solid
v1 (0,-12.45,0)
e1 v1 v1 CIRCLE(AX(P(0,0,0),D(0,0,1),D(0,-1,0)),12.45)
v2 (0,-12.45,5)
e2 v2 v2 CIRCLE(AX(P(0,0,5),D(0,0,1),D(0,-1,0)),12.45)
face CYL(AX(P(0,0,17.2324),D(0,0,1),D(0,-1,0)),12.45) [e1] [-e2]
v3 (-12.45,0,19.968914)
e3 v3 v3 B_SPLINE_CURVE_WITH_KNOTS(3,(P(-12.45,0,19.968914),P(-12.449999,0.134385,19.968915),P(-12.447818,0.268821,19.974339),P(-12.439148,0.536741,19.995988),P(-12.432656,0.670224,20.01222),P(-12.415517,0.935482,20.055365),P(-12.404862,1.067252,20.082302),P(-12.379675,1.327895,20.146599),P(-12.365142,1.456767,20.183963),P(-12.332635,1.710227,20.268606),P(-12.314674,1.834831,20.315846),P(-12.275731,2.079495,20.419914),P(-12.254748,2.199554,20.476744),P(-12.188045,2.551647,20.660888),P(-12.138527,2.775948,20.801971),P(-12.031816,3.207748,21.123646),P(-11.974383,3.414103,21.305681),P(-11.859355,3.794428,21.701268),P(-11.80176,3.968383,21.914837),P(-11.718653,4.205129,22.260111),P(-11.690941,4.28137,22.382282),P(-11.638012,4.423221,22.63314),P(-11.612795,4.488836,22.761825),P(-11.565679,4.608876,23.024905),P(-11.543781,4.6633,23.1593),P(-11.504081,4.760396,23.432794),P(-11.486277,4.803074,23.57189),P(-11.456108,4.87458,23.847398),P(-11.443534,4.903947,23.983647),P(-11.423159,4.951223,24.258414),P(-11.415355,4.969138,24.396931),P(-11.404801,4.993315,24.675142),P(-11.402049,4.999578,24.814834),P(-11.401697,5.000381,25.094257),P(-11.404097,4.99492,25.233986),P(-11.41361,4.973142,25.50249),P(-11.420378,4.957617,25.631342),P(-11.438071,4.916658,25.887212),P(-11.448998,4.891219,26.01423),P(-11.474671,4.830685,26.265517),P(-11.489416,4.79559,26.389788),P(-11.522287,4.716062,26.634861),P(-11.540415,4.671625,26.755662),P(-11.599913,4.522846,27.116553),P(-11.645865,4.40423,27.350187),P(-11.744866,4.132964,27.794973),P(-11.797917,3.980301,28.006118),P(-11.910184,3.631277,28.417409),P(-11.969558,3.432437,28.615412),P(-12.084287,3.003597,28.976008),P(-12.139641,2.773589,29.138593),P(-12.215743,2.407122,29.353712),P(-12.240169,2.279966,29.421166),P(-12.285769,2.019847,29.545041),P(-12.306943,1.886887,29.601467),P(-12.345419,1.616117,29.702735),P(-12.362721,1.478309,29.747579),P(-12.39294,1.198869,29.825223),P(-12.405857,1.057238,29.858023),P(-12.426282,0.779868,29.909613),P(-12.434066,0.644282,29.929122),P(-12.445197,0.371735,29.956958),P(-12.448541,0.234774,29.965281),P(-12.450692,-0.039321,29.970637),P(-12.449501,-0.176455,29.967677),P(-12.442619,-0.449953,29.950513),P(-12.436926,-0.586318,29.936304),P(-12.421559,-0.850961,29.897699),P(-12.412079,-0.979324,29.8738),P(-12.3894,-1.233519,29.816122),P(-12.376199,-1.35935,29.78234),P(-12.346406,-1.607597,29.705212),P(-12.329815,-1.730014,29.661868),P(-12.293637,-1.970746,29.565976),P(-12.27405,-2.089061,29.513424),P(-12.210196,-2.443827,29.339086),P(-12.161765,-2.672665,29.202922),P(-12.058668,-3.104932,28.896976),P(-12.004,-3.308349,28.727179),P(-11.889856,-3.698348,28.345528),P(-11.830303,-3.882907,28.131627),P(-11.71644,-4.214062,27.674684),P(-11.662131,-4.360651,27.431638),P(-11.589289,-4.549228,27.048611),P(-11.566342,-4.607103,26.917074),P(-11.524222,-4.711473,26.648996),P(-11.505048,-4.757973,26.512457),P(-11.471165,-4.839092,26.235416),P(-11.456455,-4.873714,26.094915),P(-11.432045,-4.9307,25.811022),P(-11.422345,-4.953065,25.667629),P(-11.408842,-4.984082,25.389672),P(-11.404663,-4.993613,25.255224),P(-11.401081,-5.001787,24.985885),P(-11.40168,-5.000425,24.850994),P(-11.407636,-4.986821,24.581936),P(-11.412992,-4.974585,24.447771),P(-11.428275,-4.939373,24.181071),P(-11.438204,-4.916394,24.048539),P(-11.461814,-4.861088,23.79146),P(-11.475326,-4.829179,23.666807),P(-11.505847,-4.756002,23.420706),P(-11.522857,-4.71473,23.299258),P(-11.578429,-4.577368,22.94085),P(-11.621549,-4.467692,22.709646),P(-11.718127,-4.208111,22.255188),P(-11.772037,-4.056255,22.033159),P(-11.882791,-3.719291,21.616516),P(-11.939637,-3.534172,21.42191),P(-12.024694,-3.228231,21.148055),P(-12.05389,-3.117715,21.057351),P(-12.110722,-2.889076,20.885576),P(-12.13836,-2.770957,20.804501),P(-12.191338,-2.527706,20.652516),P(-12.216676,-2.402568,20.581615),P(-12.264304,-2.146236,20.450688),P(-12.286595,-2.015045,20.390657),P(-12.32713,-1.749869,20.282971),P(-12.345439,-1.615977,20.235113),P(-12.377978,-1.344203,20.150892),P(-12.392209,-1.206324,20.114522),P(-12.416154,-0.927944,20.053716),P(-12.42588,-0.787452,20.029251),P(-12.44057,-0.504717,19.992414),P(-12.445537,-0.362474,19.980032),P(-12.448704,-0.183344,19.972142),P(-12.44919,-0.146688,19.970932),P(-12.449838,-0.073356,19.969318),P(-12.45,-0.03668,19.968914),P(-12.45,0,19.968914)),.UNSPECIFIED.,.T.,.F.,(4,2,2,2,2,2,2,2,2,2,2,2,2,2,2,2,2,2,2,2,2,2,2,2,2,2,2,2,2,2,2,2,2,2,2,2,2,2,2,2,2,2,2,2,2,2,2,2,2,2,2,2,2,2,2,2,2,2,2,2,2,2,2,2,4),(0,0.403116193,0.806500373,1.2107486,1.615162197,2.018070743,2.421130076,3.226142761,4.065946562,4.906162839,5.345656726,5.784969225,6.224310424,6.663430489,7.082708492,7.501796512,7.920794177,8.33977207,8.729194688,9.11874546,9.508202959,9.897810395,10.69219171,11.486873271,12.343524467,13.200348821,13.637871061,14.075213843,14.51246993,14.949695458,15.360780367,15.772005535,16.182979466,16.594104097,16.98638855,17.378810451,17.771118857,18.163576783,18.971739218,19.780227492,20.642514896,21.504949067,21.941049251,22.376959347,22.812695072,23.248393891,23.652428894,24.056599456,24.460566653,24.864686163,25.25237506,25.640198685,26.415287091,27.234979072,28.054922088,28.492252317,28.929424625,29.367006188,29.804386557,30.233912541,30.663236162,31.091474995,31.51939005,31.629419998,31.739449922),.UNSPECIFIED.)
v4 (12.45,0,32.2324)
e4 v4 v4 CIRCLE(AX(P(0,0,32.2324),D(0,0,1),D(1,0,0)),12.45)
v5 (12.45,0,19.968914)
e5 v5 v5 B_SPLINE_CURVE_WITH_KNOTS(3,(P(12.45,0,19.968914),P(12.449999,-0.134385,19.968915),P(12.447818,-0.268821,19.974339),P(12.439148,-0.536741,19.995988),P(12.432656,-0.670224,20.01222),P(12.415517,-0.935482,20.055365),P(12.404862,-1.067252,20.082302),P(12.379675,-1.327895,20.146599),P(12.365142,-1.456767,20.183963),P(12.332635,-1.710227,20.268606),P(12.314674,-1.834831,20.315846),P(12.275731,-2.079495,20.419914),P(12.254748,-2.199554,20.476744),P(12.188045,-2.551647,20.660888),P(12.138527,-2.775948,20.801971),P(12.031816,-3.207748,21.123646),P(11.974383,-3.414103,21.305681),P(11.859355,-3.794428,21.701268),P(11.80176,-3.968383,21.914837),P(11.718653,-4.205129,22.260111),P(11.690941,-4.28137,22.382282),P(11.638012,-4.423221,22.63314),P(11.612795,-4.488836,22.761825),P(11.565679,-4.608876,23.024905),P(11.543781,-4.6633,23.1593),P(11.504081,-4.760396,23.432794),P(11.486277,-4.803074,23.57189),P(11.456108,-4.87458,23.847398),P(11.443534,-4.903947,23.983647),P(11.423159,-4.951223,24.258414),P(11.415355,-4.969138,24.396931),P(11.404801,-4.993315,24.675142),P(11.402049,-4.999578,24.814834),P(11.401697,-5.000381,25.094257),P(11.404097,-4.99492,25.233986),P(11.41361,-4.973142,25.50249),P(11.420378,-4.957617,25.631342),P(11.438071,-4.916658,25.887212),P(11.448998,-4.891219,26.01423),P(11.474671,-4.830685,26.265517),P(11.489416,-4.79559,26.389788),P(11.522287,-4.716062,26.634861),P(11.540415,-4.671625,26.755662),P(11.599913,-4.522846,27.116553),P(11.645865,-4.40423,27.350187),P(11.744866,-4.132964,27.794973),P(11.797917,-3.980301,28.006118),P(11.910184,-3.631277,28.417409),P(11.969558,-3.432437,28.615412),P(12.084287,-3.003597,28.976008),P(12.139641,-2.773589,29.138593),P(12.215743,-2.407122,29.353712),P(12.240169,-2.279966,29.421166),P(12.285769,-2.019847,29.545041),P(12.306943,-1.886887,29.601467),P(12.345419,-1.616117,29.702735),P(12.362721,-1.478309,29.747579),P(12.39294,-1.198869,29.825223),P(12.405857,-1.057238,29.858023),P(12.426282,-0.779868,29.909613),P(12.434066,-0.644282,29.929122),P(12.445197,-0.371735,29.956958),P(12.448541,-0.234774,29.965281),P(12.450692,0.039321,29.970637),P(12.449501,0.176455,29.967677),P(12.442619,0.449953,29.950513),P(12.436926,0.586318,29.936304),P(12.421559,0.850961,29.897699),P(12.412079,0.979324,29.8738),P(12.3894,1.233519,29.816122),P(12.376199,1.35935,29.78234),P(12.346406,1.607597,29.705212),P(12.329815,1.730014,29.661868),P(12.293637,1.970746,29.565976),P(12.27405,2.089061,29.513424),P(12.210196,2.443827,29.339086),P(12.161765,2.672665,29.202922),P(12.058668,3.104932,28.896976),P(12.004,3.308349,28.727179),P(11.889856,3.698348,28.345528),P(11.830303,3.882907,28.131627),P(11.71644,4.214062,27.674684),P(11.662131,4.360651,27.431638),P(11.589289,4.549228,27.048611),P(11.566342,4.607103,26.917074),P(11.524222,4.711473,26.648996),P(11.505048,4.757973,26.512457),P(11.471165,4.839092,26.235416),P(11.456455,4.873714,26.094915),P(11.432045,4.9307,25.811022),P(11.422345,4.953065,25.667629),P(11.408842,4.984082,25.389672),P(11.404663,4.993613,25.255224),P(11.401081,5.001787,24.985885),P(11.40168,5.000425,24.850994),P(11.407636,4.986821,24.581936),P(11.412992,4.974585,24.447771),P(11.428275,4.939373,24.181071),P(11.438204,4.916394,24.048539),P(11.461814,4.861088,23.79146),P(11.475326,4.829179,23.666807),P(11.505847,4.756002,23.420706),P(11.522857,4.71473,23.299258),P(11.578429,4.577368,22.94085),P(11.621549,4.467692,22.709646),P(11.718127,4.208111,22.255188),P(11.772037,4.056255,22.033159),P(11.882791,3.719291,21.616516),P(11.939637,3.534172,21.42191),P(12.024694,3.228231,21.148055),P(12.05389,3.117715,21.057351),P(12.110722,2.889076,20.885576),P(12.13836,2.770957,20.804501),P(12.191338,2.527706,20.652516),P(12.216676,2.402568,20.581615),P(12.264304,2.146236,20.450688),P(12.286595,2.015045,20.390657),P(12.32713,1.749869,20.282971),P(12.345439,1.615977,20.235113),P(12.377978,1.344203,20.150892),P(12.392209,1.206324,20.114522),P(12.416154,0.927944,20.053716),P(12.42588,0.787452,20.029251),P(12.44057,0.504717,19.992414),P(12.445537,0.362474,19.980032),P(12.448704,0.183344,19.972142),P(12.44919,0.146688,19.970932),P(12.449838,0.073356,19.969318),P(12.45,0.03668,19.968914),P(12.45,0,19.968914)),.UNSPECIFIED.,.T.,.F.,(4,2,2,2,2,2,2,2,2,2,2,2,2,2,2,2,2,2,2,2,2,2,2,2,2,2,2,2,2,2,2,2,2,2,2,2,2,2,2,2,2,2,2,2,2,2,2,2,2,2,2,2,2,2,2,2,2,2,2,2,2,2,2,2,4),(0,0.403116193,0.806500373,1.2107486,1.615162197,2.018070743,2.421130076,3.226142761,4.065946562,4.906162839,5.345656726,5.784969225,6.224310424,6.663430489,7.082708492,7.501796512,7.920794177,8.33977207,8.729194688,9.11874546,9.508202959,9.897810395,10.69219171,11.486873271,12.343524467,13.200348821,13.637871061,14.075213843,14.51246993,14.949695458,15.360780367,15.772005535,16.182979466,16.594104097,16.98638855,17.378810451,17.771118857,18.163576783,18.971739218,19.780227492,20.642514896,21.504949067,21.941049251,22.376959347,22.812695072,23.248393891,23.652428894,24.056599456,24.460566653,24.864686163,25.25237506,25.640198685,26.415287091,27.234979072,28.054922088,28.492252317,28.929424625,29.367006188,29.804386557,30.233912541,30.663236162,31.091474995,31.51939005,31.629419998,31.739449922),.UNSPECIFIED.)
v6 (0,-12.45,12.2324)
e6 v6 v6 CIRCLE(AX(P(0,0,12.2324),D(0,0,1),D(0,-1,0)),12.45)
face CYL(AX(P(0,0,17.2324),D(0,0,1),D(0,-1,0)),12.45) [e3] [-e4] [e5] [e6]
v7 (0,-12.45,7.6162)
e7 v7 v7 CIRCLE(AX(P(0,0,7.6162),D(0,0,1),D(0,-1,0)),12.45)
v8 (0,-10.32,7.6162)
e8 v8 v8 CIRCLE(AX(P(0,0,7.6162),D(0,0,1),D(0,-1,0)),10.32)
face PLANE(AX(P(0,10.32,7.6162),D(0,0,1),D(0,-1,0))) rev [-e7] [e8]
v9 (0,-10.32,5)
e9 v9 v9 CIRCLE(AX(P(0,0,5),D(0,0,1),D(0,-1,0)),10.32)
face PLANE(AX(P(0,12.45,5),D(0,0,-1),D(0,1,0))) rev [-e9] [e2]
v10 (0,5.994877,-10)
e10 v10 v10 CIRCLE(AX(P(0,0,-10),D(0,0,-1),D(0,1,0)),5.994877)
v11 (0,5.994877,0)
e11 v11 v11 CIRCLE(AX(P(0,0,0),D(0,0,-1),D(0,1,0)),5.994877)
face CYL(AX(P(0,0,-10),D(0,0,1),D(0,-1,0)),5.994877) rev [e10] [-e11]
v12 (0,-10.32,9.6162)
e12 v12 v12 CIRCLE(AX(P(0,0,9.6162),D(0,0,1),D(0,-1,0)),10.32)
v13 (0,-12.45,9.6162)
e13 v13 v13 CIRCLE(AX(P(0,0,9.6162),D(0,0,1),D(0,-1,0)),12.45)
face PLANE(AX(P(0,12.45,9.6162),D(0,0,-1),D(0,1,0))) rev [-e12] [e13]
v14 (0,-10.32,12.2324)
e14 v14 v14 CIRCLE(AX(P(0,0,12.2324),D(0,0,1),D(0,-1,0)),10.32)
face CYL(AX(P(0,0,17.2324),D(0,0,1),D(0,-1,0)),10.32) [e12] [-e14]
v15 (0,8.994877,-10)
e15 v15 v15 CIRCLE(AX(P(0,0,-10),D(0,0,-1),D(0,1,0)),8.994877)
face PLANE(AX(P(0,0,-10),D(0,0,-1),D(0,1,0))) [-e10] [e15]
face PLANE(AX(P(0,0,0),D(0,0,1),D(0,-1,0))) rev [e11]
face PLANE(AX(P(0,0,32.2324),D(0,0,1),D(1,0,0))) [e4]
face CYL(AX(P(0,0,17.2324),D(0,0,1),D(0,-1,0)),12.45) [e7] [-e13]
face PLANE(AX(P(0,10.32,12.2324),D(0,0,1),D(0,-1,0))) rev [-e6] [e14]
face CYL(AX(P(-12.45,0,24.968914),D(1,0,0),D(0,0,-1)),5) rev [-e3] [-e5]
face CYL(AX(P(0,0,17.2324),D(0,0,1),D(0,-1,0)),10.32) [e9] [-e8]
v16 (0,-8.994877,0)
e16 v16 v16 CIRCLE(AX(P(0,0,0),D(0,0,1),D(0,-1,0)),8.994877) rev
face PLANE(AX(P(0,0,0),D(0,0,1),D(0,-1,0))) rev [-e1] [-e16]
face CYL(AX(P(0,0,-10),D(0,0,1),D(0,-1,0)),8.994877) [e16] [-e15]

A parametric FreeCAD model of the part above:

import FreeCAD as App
import Part
import Sketcher
from FreeCAD import Vector


def add_polygon(sketch, points):
    """Adds a closed chain of lines whose ends are joined by coincident constraints."""
    first, n = sketch.GeometryCount, len(points)
    for a, b in zip(points, points[1:] + points[:1]):
        sketch.addGeometry(Part.LineSegment(App.Vector(*a, 0), App.Vector(*b, 0)), False)
    for i in range(n):
        sketch.addConstraint(Sketcher.Constraint("Coincident", first + i, 2, first + (i + 1) % n, 1))

doc = App.newDocument("Part")
body = doc.addObject("PartDesign::Body", "Body")

# Sketch on YZ plane
sketch1 = body.newObject("Sketcher::SketchObject", "Sketch")
sketch1.AttachmentSupport = (doc.getObject("YZ_Plane"), [""])
sketch1.MapMode = "FlatFace"
add_polygon(sketch1, [(0, 0), (12.4, 0), (12.4, 5), (10.3, 5), (10.3, 7.6), (12.4, 7.6), (12.4, 9.6), (10.3, 9.6), (10.3, 12.2), (12.4, 12.2), (12.4, 17.2), (0, 17.2)])  # lines 0-11
sketch1.addConstraint([
    Sketcher.Constraint("Horizontal", 0),
    Sketcher.Constraint("Vertical", 1),
    Sketcher.Constraint("Horizontal", 2),
    Sketcher.Constraint("Vertical", 3),
    Sketcher.Constraint("Horizontal", 4),
    Sketcher.Constraint("Vertical", 5),
    Sketcher.Constraint("Horizontal", 6),
    Sketcher.Constraint("Vertical", 7),
    Sketcher.Constraint("Horizontal", 8),
    Sketcher.Constraint("Vertical", 9),
    Sketcher.Constraint("Horizontal", 10),
    Sketcher.Constraint("Vertical", 11),
    Sketcher.Constraint("Coincident", 11, 2, -1, 1),
    Sketcher.Constraint("Vertical", 1, 2, 4, 2),
    Sketcher.Constraint("Vertical", 3, 2, 6, 2),
    Sketcher.Constraint("Vertical", 5, 2, 8, 2),
    Sketcher.Constraint("Equal", 3, 7),
    Sketcher.Constraint("Equal", 1, 9),
    Sketcher.Constraint("DistanceY", 1, 1, 1, 2, 5.0),
    Sketcher.Constraint("DistanceY", 5, 1, 5, 2, 2.0),
    Sketcher.Constraint("DistanceX", 0, 1, 0, 2, 12.45),
    Sketcher.Constraint("DistanceX", 2, 2, 2, 1, 2.13),
    Sketcher.Constraint("DistanceY", 3, 1, 3, 2, 2.6162),
])
revolution = body.newObject("PartDesign::Revolution", "Revolution")
revolution.Profile = sketch1
revolution.ReferenceAxis = (sketch1, ["V_Axis"])
revolution.Angle = 360

# Sketch on XY plane
sketch2 = body.newObject("Sketcher::SketchObject", "Sketch001")
sketch2.AttachmentSupport = (doc.getObject("XY_Plane"), [""])
sketch2.MapMode = "FlatFace"
sketch2.addGeometry([
    Part.Circle(Vector(0, 0, 0), Vector(0, 0, 1), 9),
    Part.Circle(Vector(0, 0, 0), Vector(0, 0, 1), 6),
], False)
sketch2.addConstraint([
    Sketcher.Constraint("Coincident", 0, 3, -1, 1),
    Sketcher.Constraint("Coincident", 1, 3, -1, 1),
    Sketcher.Constraint("Diameter", 0, 17.989755),
    Sketcher.Constraint("Diameter", 1, 11.989755),
])
pad1 = body.newObject("PartDesign::Pad", "Pad")
pad1.Profile = sketch2
pad1.Length = 10
pad1.Reversed = True

# Sketch on XY plane
sketch3 = body.newObject("Sketcher::SketchObject", "Sketch002")
sketch3.AttachmentSupport = (doc.getObject("XY_Plane"), [""])
sketch3.MapMode = "FlatFace"
sketch3.AttachmentOffset = App.Placement(Vector(0, 0, 32.2324), App.Rotation())
sketch3.addGeometry(Part.Circle(Vector(0, 0, 0), Vector(0, 0, 1), 12), False)
sketch3.addConstraint([
    Sketcher.Constraint("Coincident", 0, 3, -1, 1),
    Sketcher.Constraint("Diameter", 0, 24.9),
])
pad2 = body.newObject("PartDesign::Pad", "Pad001")
pad2.Profile = sketch3
pad2.Length = 15
pad2.Reversed = True

# Sketch on YZ plane
sketch4 = body.newObject("Sketcher::SketchObject", "Sketch003")
sketch4.AttachmentSupport = (doc.getObject("YZ_Plane"), [""])
sketch4.MapMode = "FlatFace"
sketch4.addGeometry(Part.Circle(Vector(0, 25, 0), Vector(0, 0, 1), 5), False)
sketch4.addConstraint([
    Sketcher.Constraint("PointOnObject", 0, 3, -2),
    Sketcher.Constraint("Diameter", 0, 10.0),
    Sketcher.Constraint("DistanceY", -1, 1, 0, 3, 24.968914),
])
pocket1 = body.newObject("PartDesign::Pocket", "Pocket")
pocket1.Profile = sketch4
pocket1.Type = "ThroughAll"
pocket1.Midplane = True

doc.recompute()
